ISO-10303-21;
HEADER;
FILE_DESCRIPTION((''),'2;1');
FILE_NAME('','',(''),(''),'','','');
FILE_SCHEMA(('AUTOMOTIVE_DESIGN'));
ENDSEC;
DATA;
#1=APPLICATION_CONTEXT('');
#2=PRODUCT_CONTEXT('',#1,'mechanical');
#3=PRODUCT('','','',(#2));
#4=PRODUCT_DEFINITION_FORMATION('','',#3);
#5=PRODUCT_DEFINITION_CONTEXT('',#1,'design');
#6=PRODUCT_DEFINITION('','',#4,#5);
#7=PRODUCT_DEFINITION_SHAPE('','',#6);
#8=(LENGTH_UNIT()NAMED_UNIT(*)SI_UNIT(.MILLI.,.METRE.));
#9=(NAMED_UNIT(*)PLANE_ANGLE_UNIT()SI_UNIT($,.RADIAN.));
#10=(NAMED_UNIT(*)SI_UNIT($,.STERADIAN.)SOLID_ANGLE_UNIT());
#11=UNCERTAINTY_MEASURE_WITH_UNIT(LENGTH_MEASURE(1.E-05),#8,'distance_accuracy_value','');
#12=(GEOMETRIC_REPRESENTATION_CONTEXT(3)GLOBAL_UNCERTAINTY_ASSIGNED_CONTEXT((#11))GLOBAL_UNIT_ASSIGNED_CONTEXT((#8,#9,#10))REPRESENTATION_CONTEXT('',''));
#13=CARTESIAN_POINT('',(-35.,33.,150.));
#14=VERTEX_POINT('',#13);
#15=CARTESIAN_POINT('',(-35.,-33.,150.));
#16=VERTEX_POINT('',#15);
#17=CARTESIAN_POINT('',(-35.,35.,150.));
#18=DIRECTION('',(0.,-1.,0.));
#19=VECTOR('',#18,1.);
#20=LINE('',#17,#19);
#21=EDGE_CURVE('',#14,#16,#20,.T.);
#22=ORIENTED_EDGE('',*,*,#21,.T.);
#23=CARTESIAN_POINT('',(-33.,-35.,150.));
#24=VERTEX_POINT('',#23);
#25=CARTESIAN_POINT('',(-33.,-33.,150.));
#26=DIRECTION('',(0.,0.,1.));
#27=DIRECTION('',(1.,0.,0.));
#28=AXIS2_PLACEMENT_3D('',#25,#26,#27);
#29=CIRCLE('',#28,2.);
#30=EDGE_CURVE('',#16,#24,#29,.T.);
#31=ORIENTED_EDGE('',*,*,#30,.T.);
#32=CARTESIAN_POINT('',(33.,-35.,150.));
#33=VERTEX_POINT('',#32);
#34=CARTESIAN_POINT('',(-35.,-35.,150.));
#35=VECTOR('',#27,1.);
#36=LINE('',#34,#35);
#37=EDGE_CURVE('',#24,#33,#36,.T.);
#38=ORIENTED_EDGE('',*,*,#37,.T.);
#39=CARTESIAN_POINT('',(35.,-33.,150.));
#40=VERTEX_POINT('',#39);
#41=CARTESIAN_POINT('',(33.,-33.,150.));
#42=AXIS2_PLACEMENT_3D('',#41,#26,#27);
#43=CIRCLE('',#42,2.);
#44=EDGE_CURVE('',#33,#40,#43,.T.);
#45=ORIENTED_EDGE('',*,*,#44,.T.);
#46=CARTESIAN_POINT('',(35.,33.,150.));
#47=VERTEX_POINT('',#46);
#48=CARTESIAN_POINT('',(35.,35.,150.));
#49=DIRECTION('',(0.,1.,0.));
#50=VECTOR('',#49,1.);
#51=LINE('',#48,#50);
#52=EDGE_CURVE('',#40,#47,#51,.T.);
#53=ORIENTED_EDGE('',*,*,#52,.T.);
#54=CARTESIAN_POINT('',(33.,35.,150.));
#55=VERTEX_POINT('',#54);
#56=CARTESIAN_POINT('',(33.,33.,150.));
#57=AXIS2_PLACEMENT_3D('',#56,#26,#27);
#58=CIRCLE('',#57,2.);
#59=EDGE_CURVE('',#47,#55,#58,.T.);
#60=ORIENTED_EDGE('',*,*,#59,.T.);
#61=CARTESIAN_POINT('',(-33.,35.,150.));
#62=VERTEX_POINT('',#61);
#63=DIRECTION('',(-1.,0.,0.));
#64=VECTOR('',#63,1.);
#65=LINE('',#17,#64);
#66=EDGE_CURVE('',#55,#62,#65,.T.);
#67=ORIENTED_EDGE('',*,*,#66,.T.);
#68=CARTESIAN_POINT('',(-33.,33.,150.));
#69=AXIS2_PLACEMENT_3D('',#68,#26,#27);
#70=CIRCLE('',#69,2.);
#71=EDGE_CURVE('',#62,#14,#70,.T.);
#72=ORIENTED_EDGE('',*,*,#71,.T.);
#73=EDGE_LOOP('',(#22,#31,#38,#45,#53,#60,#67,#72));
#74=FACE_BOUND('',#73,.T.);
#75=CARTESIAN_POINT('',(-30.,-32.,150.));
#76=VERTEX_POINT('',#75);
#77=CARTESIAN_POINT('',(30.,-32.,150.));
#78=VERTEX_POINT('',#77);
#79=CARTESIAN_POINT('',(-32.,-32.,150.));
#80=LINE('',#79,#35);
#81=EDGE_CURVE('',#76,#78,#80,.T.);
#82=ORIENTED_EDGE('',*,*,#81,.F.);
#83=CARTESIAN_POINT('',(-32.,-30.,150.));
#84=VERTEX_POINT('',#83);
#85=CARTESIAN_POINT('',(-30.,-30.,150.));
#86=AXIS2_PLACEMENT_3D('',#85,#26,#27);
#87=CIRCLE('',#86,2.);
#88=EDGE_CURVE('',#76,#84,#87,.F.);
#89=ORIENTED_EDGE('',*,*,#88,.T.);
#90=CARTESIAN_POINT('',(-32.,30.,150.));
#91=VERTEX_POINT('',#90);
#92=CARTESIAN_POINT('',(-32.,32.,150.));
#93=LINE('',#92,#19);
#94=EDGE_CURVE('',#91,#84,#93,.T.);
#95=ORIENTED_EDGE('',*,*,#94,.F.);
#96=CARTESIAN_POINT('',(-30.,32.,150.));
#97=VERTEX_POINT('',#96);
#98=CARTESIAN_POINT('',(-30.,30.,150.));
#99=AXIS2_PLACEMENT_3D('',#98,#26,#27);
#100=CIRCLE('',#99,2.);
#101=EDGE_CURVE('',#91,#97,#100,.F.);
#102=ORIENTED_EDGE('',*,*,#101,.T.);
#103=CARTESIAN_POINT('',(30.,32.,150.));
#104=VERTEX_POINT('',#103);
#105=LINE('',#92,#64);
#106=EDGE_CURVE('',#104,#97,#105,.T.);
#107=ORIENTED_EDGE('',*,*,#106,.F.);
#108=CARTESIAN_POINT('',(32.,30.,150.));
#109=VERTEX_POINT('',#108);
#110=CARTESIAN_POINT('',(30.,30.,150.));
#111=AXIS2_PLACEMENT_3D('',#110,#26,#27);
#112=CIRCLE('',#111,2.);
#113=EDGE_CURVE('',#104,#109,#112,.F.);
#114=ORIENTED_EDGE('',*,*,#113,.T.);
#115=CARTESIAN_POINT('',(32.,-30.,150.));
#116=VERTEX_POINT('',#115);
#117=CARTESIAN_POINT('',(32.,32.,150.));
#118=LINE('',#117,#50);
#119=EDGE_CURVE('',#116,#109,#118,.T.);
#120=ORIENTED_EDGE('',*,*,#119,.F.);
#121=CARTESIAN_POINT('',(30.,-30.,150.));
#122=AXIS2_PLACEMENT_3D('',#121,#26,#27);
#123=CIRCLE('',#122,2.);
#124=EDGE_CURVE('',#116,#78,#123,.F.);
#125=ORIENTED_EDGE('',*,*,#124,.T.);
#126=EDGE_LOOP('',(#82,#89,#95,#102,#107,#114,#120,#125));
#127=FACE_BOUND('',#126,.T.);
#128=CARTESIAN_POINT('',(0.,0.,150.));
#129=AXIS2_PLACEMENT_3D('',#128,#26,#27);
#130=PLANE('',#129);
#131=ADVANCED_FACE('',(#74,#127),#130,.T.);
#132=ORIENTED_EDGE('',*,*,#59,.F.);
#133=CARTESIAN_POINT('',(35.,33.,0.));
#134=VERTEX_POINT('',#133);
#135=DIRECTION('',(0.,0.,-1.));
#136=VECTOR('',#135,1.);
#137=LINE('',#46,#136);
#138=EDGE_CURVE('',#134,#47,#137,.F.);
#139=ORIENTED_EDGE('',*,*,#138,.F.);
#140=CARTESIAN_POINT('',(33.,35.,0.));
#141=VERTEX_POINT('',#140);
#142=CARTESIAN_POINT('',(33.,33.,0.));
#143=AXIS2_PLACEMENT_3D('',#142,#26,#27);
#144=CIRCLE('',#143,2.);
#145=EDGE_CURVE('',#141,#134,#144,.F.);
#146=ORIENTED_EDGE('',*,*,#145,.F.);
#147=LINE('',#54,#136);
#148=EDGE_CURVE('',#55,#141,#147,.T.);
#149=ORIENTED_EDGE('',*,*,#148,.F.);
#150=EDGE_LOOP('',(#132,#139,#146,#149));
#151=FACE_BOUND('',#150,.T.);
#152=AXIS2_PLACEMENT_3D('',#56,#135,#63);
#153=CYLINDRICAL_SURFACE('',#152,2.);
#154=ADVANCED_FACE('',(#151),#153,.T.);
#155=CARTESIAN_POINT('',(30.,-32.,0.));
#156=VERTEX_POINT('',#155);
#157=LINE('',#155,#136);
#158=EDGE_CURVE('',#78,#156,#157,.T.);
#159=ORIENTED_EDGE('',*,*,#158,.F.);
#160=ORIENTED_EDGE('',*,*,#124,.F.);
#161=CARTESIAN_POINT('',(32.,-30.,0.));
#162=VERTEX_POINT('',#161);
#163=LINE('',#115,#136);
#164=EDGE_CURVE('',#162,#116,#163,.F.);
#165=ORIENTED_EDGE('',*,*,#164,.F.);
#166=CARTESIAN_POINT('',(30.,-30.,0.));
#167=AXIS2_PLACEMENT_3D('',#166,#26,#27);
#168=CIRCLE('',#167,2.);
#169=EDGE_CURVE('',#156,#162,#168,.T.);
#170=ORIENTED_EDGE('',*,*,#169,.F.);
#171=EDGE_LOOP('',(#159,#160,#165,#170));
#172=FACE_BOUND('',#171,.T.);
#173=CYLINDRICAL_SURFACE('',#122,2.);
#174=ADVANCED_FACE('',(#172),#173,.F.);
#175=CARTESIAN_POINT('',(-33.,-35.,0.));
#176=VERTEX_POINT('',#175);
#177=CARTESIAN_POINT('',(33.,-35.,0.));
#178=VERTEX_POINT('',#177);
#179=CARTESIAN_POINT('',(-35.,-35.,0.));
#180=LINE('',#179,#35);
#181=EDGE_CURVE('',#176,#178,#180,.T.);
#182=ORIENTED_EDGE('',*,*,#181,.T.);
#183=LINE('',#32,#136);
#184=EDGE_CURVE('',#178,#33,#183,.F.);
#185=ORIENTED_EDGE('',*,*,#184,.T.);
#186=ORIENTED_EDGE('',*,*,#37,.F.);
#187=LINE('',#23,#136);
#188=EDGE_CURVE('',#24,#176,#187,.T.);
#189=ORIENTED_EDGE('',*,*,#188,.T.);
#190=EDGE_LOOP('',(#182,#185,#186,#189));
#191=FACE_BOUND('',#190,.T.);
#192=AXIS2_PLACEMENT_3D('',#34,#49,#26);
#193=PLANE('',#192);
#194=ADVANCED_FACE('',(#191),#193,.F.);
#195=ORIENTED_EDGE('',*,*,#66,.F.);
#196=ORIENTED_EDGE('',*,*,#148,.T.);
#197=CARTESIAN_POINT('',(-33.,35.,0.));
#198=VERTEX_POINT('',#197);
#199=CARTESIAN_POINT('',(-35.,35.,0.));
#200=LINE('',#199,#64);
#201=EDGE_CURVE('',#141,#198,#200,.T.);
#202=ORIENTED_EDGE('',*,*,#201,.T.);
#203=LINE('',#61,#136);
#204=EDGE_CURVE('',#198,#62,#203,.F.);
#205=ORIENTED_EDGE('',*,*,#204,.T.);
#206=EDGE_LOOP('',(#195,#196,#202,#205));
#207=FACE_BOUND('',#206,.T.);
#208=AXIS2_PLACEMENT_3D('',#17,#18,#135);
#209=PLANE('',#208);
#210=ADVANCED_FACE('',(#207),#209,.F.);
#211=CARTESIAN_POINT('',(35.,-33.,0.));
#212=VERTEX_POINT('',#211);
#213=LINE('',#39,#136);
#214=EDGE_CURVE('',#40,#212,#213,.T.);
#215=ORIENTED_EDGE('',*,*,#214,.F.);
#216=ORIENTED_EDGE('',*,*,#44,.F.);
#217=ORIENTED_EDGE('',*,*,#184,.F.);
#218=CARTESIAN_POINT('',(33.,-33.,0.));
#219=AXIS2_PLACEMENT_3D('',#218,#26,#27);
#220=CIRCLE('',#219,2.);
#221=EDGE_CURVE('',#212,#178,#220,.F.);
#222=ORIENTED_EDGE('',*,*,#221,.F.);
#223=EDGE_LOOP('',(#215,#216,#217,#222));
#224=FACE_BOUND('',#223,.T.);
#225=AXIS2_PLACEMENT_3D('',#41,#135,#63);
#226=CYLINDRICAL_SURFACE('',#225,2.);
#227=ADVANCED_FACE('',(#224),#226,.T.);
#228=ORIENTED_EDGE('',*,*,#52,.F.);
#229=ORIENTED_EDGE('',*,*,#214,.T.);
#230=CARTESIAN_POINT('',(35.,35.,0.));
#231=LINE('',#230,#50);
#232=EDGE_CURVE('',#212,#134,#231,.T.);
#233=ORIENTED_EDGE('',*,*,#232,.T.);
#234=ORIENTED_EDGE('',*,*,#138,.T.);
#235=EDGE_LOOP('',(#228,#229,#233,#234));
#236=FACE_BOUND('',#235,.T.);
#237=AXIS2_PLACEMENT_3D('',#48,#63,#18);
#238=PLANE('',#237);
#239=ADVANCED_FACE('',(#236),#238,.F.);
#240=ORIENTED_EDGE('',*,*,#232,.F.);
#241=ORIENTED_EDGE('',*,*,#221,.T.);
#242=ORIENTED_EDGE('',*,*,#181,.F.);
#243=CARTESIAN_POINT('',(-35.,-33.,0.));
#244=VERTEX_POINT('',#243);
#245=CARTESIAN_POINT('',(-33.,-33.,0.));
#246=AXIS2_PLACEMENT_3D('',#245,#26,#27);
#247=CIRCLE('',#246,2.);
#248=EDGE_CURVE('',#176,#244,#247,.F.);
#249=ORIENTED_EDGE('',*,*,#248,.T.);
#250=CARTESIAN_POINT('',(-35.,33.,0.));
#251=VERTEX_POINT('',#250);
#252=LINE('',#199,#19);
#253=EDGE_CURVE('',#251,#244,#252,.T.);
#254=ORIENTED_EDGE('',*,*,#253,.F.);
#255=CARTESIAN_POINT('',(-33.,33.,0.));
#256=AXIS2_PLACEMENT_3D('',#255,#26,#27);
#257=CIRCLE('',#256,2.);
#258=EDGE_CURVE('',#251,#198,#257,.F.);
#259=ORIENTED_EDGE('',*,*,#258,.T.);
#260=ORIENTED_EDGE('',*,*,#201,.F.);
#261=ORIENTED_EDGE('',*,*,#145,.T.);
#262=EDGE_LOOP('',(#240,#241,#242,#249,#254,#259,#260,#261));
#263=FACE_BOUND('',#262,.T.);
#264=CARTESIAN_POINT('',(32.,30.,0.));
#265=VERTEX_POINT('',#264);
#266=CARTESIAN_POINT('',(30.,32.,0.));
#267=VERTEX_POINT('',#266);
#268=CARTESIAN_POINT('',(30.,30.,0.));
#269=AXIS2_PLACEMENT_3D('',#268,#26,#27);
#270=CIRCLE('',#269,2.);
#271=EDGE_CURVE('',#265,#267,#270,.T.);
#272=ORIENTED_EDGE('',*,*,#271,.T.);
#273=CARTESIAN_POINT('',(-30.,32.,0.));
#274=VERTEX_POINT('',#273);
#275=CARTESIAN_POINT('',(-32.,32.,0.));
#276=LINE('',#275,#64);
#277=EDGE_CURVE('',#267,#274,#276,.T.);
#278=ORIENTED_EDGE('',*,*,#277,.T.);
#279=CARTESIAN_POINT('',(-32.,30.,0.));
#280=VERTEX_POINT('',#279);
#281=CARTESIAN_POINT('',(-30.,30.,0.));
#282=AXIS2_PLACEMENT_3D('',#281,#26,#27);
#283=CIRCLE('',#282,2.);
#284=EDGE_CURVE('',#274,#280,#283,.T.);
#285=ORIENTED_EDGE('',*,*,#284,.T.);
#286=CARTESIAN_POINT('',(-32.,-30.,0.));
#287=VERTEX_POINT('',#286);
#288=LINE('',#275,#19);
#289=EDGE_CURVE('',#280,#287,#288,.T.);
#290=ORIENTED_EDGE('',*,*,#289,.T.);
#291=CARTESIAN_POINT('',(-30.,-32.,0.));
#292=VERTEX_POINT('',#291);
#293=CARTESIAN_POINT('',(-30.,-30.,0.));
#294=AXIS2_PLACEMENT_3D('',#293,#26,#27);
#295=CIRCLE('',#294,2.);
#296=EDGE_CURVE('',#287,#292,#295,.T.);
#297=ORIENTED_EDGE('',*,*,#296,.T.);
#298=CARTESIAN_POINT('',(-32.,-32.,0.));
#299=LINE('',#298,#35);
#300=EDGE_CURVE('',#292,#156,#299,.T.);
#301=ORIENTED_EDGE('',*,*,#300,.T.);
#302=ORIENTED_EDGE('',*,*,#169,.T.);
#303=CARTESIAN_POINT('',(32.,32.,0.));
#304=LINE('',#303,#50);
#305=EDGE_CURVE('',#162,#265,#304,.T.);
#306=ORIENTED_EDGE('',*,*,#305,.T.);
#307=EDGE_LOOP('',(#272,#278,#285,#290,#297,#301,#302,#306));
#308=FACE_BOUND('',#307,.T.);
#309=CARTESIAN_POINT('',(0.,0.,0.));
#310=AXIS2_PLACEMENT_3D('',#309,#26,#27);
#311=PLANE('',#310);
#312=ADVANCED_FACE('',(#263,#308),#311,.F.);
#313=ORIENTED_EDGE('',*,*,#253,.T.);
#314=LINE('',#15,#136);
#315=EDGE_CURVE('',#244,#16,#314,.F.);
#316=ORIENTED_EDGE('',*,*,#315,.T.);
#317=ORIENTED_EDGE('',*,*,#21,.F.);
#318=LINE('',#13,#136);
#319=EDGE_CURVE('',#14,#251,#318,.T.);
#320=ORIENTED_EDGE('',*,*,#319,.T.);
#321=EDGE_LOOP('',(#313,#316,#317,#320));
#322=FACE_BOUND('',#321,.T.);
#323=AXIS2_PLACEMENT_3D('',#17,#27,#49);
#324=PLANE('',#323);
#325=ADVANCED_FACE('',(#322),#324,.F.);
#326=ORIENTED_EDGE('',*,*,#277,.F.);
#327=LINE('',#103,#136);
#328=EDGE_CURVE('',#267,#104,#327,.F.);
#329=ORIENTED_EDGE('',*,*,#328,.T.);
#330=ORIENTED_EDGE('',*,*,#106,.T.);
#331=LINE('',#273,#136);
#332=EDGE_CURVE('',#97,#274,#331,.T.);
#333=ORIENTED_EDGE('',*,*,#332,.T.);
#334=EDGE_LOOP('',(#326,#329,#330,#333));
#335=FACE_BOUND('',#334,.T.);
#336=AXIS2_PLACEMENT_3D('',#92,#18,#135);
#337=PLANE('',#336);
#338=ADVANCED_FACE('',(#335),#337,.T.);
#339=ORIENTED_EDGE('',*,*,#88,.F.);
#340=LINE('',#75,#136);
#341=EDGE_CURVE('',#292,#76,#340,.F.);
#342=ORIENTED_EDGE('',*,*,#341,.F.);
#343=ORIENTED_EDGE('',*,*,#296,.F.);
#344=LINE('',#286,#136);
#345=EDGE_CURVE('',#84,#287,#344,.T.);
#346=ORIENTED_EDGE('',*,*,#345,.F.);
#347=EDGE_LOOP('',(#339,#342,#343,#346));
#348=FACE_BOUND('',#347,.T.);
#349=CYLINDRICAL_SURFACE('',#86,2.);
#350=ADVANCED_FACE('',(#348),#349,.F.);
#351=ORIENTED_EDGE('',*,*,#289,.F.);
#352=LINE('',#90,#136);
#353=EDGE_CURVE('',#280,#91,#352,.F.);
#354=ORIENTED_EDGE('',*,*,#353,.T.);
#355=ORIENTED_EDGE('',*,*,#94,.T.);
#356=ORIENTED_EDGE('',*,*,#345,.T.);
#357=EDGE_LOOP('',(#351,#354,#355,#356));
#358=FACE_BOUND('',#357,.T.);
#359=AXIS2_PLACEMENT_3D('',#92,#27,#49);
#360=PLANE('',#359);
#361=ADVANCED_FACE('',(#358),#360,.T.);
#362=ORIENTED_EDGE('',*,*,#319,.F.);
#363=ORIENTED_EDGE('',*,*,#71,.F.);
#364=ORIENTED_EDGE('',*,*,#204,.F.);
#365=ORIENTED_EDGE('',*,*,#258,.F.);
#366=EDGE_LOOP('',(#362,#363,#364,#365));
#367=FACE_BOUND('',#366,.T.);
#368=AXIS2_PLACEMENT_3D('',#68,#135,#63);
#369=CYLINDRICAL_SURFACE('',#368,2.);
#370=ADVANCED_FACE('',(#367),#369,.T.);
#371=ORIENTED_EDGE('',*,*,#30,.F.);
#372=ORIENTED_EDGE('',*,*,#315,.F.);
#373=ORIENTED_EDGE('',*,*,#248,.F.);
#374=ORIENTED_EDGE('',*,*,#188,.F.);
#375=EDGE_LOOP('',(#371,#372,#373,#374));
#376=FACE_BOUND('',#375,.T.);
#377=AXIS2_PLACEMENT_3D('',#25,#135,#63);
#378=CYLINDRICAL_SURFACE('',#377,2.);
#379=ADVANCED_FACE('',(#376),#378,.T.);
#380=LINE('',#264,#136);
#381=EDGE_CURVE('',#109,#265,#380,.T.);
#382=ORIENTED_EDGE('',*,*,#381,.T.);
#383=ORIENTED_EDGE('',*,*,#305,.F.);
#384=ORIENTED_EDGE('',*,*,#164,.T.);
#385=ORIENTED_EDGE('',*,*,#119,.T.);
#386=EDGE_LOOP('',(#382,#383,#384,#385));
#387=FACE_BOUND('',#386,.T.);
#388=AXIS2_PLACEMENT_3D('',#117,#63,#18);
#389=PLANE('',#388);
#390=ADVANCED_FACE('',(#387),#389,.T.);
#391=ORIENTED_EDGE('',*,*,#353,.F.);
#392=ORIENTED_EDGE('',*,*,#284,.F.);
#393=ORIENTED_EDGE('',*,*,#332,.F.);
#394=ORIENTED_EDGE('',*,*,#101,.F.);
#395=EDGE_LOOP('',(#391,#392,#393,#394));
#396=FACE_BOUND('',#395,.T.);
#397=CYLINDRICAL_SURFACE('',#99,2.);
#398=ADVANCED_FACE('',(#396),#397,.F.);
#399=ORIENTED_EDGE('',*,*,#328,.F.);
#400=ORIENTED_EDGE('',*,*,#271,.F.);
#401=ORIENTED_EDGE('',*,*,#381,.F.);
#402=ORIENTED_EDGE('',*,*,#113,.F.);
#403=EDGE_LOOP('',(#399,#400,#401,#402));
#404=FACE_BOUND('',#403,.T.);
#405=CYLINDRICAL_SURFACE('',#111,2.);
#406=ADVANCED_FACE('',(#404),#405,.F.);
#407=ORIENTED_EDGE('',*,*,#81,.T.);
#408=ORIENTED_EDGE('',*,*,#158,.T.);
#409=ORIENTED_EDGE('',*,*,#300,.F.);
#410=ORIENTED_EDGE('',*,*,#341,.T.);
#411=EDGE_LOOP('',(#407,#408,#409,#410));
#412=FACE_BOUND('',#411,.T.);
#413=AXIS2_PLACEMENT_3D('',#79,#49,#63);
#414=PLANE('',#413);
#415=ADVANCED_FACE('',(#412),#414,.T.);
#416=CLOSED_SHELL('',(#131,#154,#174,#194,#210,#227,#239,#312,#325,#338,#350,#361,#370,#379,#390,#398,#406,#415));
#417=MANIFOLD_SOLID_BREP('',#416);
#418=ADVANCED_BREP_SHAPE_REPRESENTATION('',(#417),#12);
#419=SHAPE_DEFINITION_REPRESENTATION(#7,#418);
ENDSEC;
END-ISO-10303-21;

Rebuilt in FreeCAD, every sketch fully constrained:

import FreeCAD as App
import Part
import Sketcher

V = App.Vector
Q = App.Units.Quantity


def edges_at(feature, points):
    """Names of the edges that pass closest to the given points."""
    edges = feature.Shape.Edges
    near = lambda p: min(range(len(edges)), key=lambda i: edges[i].distToShape(Part.Vertex(*p))[0])
    return sorted({f"Edge{near(p) + 1}" for p in points})

doc = App.newDocument("Part")
body = doc.addObject("PartDesign::Body", "Body")

sketch1 = doc.addObject("Sketcher::SketchObject", "Sketch")
body.addObject(sketch1)
sketch1.AttachmentSupport = (doc.XY_Plane, [""])
sketch1.MapMode = "FlatFace"
sketch1.addGeometry([
    Part.LineSegment(V(-35, 35, 0), V(-35, -35, 0)),
    Part.LineSegment(V(-35, -35, 0), V(35, -35, 0)),
    Part.LineSegment(V(35, -35, 0), V(35, 35, 0)),
    Part.LineSegment(V(35, 35, 0), V(-35, 35, 0)),
    Part.LineSegment(V(32, -32, 0), V(-32, -32, 0)),
    Part.LineSegment(V(-32, -32, 0), V(-32, 32, 0)),
    Part.LineSegment(V(-32, 32, 0), V(32, 32, 0)),
    Part.LineSegment(V(32, 32, 0), V(32, -32, 0)),
], False)
sketch1.addConstraint([
    Sketcher.Constraint("Coincident", 0, 2, 1, 1),
    Sketcher.Constraint("Coincident", 1, 2, 2, 1),
    Sketcher.Constraint("Coincident", 2, 2, 3, 1),
    Sketcher.Constraint("Coincident", 3, 2, 0, 1),
    Sketcher.Constraint("Coincident", 4, 2, 5, 1),
    Sketcher.Constraint("Coincident", 5, 2, 6, 1),
    Sketcher.Constraint("Coincident", 6, 2, 7, 1),
    Sketcher.Constraint("Coincident", 7, 2, 4, 1),
    Sketcher.Constraint("Vertical", 0),
    Sketcher.Constraint("Horizontal", 1),
    Sketcher.Constraint("Vertical", 2),
    Sketcher.Constraint("Horizontal", 3),
    Sketcher.Constraint("Horizontal", 4),
    Sketcher.Constraint("Vertical", 5),
    Sketcher.Constraint("Horizontal", 6),
    Sketcher.Constraint("Vertical", 7),
    Sketcher.Constraint("Symmetric", 0, 2, 2, 2, -1, 1),
    Sketcher.Constraint("Symmetric", 4, 2, 6, 2, -1, 1),
    Sketcher.Constraint("Equal", 3, 0),
    Sketcher.Constraint("Equal", 6, 5),
    Sketcher.Constraint("DistanceX", 1, 1, 1, 2, Q("70 mm")),
    Sketcher.Constraint("DistanceX", 4, 2, 4, 1, Q("64 mm")),
])
pad1 = doc.addObject("PartDesign::Pad", "Pad")
body.addObject(pad1)
pad1.Profile = sketch1
pad1.Length = 150
doc.recompute()

fillet = doc.addObject("PartDesign::Fillet", "Fillet")
body.addObject(fillet)
fillet.Base = (pad1, edges_at(pad1, [
    (32, -32, 75),
    (32, 32, 75),
    (-32, 32, 75),
    (-32, -32, 75),
    (35, -35, 75),
    (-35, -35, 75),
    (-35, 35, 75),
    (35, 35, 75),
]))
fillet.Radius = 2

doc.recompute()
